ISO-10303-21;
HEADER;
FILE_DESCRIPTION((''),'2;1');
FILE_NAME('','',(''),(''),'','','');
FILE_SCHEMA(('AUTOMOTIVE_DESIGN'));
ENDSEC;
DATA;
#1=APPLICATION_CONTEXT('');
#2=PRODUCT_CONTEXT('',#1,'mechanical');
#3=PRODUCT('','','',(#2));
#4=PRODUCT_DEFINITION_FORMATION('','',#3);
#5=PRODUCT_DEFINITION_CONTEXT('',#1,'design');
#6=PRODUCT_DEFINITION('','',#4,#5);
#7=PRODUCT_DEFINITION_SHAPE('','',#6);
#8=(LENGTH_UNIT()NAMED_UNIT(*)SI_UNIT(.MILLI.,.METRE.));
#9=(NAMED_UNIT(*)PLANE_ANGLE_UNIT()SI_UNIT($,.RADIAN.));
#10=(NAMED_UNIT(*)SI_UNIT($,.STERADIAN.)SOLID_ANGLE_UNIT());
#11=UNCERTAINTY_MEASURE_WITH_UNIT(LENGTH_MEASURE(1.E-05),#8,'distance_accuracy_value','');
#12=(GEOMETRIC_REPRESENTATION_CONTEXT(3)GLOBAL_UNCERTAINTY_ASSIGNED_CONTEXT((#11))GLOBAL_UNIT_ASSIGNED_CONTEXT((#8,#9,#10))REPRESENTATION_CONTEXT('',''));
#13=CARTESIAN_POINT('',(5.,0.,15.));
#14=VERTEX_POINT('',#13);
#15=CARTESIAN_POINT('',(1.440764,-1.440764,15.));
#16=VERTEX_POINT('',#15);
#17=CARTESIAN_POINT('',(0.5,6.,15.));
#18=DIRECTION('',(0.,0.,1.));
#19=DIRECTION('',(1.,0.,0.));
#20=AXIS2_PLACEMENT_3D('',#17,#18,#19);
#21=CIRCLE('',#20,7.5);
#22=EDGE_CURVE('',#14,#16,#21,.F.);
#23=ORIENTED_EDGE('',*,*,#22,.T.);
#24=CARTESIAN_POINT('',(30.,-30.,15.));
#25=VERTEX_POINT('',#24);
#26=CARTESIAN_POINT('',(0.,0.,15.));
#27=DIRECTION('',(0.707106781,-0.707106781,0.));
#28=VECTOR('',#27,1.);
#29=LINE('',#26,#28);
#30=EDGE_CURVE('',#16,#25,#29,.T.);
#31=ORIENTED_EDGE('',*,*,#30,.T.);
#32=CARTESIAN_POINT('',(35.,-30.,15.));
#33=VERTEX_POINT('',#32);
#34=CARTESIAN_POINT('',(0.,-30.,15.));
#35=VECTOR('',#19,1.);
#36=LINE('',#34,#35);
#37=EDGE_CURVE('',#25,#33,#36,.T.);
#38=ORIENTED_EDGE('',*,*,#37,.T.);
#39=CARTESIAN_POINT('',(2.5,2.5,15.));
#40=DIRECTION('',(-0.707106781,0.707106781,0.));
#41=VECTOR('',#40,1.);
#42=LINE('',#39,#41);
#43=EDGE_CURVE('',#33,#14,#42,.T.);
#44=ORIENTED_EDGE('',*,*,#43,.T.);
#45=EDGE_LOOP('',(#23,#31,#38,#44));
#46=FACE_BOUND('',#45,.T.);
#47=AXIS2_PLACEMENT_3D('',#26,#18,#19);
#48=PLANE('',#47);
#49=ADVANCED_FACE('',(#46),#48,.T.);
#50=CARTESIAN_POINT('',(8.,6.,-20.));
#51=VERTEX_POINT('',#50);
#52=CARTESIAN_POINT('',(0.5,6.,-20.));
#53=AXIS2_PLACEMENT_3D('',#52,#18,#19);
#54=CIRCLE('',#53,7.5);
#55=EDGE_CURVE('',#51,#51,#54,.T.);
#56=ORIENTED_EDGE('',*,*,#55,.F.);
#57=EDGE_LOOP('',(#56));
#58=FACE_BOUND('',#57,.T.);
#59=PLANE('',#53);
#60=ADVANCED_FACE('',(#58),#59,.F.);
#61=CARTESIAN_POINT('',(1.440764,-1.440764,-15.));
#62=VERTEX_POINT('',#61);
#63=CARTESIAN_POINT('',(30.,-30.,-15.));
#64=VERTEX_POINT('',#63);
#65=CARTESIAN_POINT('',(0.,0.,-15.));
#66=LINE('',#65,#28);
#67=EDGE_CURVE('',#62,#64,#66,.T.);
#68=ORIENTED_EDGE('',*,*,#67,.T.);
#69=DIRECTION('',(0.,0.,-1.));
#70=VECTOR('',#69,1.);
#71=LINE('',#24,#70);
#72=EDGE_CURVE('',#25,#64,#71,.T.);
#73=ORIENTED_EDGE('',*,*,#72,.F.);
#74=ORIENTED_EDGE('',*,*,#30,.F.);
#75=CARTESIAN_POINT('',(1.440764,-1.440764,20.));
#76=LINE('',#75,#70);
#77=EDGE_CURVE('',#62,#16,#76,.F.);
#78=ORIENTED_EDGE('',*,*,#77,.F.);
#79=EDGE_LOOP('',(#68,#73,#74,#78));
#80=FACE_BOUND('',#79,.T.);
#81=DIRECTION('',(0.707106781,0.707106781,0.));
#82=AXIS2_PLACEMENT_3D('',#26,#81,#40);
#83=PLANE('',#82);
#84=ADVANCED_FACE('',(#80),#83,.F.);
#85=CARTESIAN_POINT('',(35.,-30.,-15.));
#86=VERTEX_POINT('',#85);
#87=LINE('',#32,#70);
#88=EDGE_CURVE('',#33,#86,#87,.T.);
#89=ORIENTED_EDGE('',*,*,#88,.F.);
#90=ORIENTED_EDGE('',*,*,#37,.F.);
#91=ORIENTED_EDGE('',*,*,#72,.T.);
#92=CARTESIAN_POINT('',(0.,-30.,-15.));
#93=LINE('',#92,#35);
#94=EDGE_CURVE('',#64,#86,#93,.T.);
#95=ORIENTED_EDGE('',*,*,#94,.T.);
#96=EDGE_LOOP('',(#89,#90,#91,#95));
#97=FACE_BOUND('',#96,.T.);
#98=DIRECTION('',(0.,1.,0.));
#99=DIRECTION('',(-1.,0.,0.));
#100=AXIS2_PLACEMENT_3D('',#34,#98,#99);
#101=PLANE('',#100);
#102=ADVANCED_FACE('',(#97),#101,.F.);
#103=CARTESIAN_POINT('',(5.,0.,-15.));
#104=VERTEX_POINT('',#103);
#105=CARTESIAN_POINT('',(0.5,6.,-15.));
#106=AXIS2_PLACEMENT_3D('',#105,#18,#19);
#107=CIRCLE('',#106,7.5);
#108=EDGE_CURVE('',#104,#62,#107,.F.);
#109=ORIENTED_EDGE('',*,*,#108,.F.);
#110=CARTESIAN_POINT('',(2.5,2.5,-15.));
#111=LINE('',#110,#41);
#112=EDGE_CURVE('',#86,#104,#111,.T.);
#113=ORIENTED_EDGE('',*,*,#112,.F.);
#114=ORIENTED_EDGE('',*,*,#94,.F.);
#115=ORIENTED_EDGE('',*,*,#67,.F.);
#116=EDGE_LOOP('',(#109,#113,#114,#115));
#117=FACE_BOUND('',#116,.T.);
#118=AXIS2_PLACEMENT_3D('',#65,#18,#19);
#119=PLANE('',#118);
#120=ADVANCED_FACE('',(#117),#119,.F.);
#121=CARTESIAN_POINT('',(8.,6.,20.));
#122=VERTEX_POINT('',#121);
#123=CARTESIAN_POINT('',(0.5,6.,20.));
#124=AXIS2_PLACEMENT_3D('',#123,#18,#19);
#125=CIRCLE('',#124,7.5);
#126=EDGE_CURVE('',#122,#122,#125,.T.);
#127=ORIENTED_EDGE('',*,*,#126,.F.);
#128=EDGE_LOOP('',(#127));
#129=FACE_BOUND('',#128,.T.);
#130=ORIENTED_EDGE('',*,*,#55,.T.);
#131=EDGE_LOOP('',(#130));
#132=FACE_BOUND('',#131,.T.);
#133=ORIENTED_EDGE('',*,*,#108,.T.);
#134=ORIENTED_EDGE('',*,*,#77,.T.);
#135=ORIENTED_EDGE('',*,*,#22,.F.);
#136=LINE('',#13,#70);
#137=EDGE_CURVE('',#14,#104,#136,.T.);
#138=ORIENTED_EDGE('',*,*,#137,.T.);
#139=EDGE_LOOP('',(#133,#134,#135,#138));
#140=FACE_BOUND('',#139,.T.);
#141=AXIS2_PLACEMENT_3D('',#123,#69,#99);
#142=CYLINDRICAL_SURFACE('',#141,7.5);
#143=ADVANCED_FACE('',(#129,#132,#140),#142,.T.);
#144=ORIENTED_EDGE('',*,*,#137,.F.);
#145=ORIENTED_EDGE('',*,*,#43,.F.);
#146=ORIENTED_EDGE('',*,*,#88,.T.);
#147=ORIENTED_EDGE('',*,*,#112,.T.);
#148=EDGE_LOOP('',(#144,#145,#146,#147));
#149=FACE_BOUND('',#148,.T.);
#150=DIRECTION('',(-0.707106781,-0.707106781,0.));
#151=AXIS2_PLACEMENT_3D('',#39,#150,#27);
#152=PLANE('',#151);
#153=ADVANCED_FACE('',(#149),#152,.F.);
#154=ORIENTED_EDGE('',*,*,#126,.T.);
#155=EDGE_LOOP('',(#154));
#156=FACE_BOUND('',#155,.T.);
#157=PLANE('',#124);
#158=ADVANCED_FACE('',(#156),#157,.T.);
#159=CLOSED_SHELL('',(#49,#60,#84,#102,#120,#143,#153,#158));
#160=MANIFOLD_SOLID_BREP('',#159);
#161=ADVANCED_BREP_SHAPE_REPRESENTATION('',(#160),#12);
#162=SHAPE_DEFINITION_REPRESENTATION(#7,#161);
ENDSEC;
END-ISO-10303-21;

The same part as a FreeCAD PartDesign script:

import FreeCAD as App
import Part
import Sketcher
Q = App.Units.Quantity


def add_polygon(sketch, points):
    """Adds a closed chain of lines whose ends are joined by coincident constraints."""
    first, n = sketch.GeometryCount, len(points)
    for a, b in zip(points, points[1:] + points[:1]):
        sketch.addGeometry(Part.LineSegment(App.Vector(*a, 0), App.Vector(*b, 0)), False)
    for i in range(n):
        sketch.addConstraint(Sketcher.Constraint("Coincident", first + i, 2, first + (i + 1) % n, 1))

doc = App.newDocument("Part")
body = doc.addObject("PartDesign::Body", "Body")

# Sketch on XY plane
sketch1 = body.newObject("Sketcher::SketchObject", "Sketch")
sketch1.AttachmentSupport = (doc.getObject("XY_Plane"), [""])
sketch1.MapMode = "FlatFace"
add_polygon(sketch1, [(0, 0), (30, -30), (35, -30), (5, 0)])  # lines 0-3
sketch1.addConstraint([
    Sketcher.Constraint("Horizontal", 1),
    Sketcher.Constraint("Horizontal", 3),
    Sketcher.Constraint("Coincident", 3, 2, -1, 1),
    Sketcher.Constraint("Parallel", 0, 2),
    Sketcher.Constraint("DistanceX", 1, 1, 1, 2, Q("5 mm")),
    Sketcher.Constraint("Angle", 0, Q("-45 deg")),
    Sketcher.Constraint("DistanceX", -1, 1, 0, 2, Q("30 mm")),
])
pad1 = body.newObject("PartDesign::Pad", "Pad")
pad1.Profile = sketch1
pad1.Length = 30
pad1.Midplane = True

# Sketch on XY plane
sketch2 = body.newObject("Sketcher::SketchObject", "Sketch001")
sketch2.AttachmentSupport = (doc.getObject("XY_Plane"), [""])
sketch2.MapMode = "FlatFace"
sketch2.addGeometry(Part.Circle(App.Vector(0.5, 6, 0), App.Vector(0, 0, 1), 7.5), False)
sketch2.addConstraint([
    Sketcher.Constraint("Diameter", 0, Q("15 mm")),
    Sketcher.Constraint("DistanceY", -1, 1, 0, 3, Q("6 mm")),
    Sketcher.Constraint("DistanceX", -1, 1, 0, 3, Q("0.5 mm")),
])
pad2 = body.newObject("PartDesign::Pad", "Pad001")
pad2.Profile = sketch2
pad2.Length = 40
pad2.Midplane = True

doc.recompute()
